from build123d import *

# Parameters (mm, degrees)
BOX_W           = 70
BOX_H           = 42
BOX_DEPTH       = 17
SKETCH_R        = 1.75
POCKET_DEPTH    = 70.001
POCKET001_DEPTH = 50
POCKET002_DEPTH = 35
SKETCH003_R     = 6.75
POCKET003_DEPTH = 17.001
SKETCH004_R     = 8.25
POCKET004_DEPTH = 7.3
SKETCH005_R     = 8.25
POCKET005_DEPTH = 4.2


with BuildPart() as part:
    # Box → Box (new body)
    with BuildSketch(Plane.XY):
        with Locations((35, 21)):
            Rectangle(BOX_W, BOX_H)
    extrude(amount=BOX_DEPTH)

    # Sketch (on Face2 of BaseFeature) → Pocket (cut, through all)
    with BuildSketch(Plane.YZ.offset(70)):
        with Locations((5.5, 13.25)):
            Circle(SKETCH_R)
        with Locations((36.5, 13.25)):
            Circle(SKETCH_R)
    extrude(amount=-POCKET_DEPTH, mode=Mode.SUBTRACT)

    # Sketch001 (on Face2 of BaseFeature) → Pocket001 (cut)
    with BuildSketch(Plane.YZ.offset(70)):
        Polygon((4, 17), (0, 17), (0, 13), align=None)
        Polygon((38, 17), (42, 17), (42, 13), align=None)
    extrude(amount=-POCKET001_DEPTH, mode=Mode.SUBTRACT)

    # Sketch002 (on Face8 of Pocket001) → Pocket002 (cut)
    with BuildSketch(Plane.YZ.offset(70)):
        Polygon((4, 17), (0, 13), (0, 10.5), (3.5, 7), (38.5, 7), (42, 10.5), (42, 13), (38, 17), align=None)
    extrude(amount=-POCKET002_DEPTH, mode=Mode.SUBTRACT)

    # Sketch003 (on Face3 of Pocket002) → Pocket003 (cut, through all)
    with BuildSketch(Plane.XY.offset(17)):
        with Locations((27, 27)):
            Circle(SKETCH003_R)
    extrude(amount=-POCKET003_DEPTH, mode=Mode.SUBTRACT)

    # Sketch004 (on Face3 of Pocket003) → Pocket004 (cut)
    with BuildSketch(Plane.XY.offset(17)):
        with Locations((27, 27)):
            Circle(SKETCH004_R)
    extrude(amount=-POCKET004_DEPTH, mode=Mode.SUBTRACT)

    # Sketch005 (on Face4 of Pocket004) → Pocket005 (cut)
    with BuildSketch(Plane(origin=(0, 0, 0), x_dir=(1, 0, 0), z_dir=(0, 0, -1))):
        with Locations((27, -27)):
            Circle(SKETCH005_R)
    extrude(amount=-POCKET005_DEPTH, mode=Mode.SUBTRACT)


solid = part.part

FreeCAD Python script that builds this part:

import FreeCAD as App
import Part
import Sketcher
Q = App.Units.Quantity

doc = App.newDocument("Part")
body = doc.addObject("PartDesign::Body", "Body")

# Sketch on XY plane
sketch1 = body.newObject("Sketcher::SketchObject", "Sketch")
sketch1.AttachmentSupport = (doc.getObject("XY_Plane"), [""])
sketch1.MapMode = "FlatFace"
sketch1.addGeometry([
    Part.LineSegment(App.Vector(0, 42, 0), App.Vector(0, 0, 0)),
    Part.LineSegment(App.Vector(0, 0, 0), App.Vector(70, 0, 0)),
    Part.LineSegment(App.Vector(70, 0, 0), App.Vector(70, 42, 0)),
    Part.LineSegment(App.Vector(70, 42, 0), App.Vector(0, 42, 0)),
], False)
sketch1.addConstraint([
    Sketcher.Constraint("Coincident", 0, 2, 1, 1),
    Sketcher.Constraint("Coincident", 1, 2, 2, 1),
    Sketcher.Constraint("Coincident", 2, 2, 3, 1),
    Sketcher.Constraint("Coincident", 3, 2, 0, 1),
    Sketcher.Constraint("Vertical", 0),
    Sketcher.Constraint("Horizontal", 1),
    Sketcher.Constraint("Vertical", 2),
    Sketcher.Constraint("Horizontal", 3),
    Sketcher.Constraint("Coincident", 0, 2, -1, 1),
    Sketcher.Constraint("DistanceX", 1, 1, 1, 2, Q("70 mm")),
    Sketcher.Constraint("DistanceY", 0, 2, 0, 1, Q("42 mm")),
])
pad1 = body.newObject("PartDesign::Pad", "Pad")
pad1.Profile = sketch1
pad1.Length = 17

# Sketch on YZ plane
sketch2 = body.newObject("Sketcher::SketchObject", "Sketch001")
sketch2.AttachmentSupport = (doc.getObject("YZ_Plane"), [""])
sketch2.MapMode = "FlatFace"
sketch2.AttachmentOffset = App.Placement(App.Vector(0, 0, 70), App.Rotation())
sketch2.addGeometry([
    Part.Circle(App.Vector(5.5, 13.2, 0), App.Vector(0, 0, 1), 1.8),
    Part.Circle(App.Vector(36.5, 13.2, 0), App.Vector(0, 0, 1), 1.8),
], False)
sketch2.addConstraint([
    Sketcher.Constraint("Equal", 0, 1),
    Sketcher.Constraint("Horizontal", 0, 3, 1, 3),
    Sketcher.Constraint("Diameter", 0, Q("3.5 mm")),
    Sketcher.Constraint("DistanceX", 0, 3, 1, 3, Q("31 mm")),
    Sketcher.Constraint("DistanceX", -1, 1, 0, 3, Q("5.5 mm")),
    Sketcher.Constraint("DistanceY", -1, 1, 0, 3, Q("13.25 mm")),
])
pocket1 = body.newObject("PartDesign::Pocket", "Pocket")
pocket1.Profile = sketch2
pocket1.Type = "ThroughAll"

# Sketch on YZ plane
sketch3 = body.newObject("Sketcher::SketchObject", "Sketch002")
sketch3.AttachmentSupport = (doc.getObject("YZ_Plane"), [""])
sketch3.MapMode = "FlatFace"
sketch3.AttachmentOffset = App.Placement(App.Vector(0, 0, 70), App.Rotation())
sketch3.addGeometry([
    Part.LineSegment(App.Vector(4, 17, 0), App.Vector(0, 17, 0)),  # 0
    Part.LineSegment(App.Vector(0, 17, 0), App.Vector(0, 13, 0)),  # 1
    Part.LineSegment(App.Vector(0, 13, 0), App.Vector(4, 17, 0)),  # 2
    Part.LineSegment(App.Vector(42, 17, 0), App.Vector(38, 17, 0)),  # 3
    Part.LineSegment(App.Vector(38, 17, 0), App.Vector(42, 13, 0)),  # 4
    Part.LineSegment(App.Vector(42, 13, 0), App.Vector(42, 17, 0)),  # 5
], False)
sketch3.addConstraint([
    Sketcher.Constraint("Coincident", 0, 2, 1, 1),
    Sketcher.Constraint("Coincident", 1, 2, 2, 1),
    Sketcher.Constraint("Coincident", 2, 2, 0, 1),
    Sketcher.Constraint("Coincident", 3, 2, 4, 1),
    Sketcher.Constraint("Coincident", 4, 2, 5, 1),
    Sketcher.Constraint("Coincident", 5, 2, 3, 1),
    Sketcher.Constraint("Horizontal", 0),
    Sketcher.Constraint("Vertical", 1),
    Sketcher.Constraint("Horizontal", 3),
    Sketcher.Constraint("Vertical", 5),
    Sketcher.Constraint("PointOnObject", 0, 2, -2),
    Sketcher.Constraint("Perpendicular", 2, 4),
    Sketcher.Constraint("Horizontal", 2, 2, 3, 2),
    Sketcher.Constraint("Horizontal", 1, 2, 4, 2),
    Sketcher.Constraint("Equal", 0, 3),
    Sketcher.Constraint("DistanceX", 0, 2, 0, 1, Q("4 mm")),
    Sketcher.Constraint("DistanceY", -1, 1, 0, 2, Q("17 mm")),
    Sketcher.Constraint("DistanceX", -1, 1, 3, 2, Q("38 mm")),
])
pocket2 = body.newObject("PartDesign::Pocket", "Pocket001")
pocket2.Profile = sketch3
pocket2.Length = 50

# Sketch on YZ plane
sketch4 = body.newObject("Sketcher::SketchObject", "Sketch003")
sketch4.AttachmentSupport = (doc.getObject("YZ_Plane"), [""])
sketch4.MapMode = "FlatFace"
sketch4.AttachmentOffset = App.Placement(App.Vector(0, 0, 70), App.Rotation())
sketch4.addGeometry([
    Part.LineSegment(App.Vector(4, 17, 0), App.Vector(0, 13, 0)),  # 0
    Part.LineSegment(App.Vector(0, 13, 0), App.Vector(0, 10.5, 0)),  # 1
    Part.LineSegment(App.Vector(0, 10.5, 0), App.Vector(3.5, 7, 0)),  # 2
    Part.LineSegment(App.Vector(3.5, 7, 0), App.Vector(38.5, 7, 0)),  # 3
    Part.LineSegment(App.Vector(38.5, 7, 0), App.Vector(42, 10.5, 0)),  # 4
    Part.LineSegment(App.Vector(42, 10.5, 0), App.Vector(42, 13, 0)),  # 5
    Part.LineSegment(App.Vector(42, 13, 0), App.Vector(38, 17, 0)),  # 6
    Part.LineSegment(App.Vector(38, 17, 0), App.Vector(4, 17, 0)),  # 7
], False)
sketch4.addConstraint([
    Sketcher.Constraint("Coincident", 0, 2, 1, 1),
    Sketcher.Constraint("Coincident", 1, 2, 2, 1),
    Sketcher.Constraint("Coincident", 2, 2, 3, 1),
    Sketcher.Constraint("Coincident", 3, 2, 4, 1),
    Sketcher.Constraint("Coincident", 4, 2, 5, 1),
    Sketcher.Constraint("Coincident", 5, 2, 6, 1),
    Sketcher.Constraint("Coincident", 6, 2, 7, 1),
    Sketcher.Constraint("Coincident", 7, 2, 0, 1),
    Sketcher.Constraint("Vertical", 1),
    Sketcher.Constraint("Horizontal", 3),
    Sketcher.Constraint("Vertical", 5),
    Sketcher.Constraint("Horizontal", 7),
    Sketcher.Constraint("PointOnObject", 0, 2, -2),
    Sketcher.Constraint("Perpendicular", 0, 2),
    Sketcher.Constraint("Perpendicular", 2, 4),
    Sketcher.Constraint("Perpendicular", 4, 6),
    Sketcher.Constraint("Horizontal", 1, 2, 4, 2),
    Sketcher.Constraint("Horizontal", 0, 2, 5, 2),
    Sketcher.Constraint("Equal", 2, 4),
    Sketcher.Constraint("DistanceX", 3, 1, 3, 2, Q("35 mm")),
    Sketcher.Constraint("DistanceX", 7, 2, 7, 1, Q("34 mm")),
    Sketcher.Constraint("DistanceY", 1, 2, 1, 1, Q("2.5 mm")),
    Sketcher.Constraint("DistanceY", -1, 1, 0, 2, Q("13 mm")),
    Sketcher.Constraint("DistanceY", -1, 1, 2, 2, Q("7 mm")),
])
pocket3 = body.newObject("PartDesign::Pocket", "Pocket002")
pocket3.Profile = sketch4
pocket3.Length = 35

# Sketch on XY plane
sketch5 = body.newObject("Sketcher::SketchObject", "Sketch004")
sketch5.AttachmentSupport = (doc.getObject("XY_Plane"), [""])
sketch5.MapMode = "FlatFace"
sketch5.AttachmentOffset = App.Placement(App.Vector(0, 0, 17), App.Rotation())
sketch5.addGeometry(Part.Circle(App.Vector(27, 27, 0), App.Vector(0, 0, 1), 7), False)
sketch5.addConstraint([
    Sketcher.Constraint("Diameter", 0, Q("13.5 mm")),
    Sketcher.Constraint("DistanceX", -1, 1, 0, 3, Q("27 mm")),
    Sketcher.Constraint("DistanceY", -1, 1, 0, 3, Q("27 mm")),
])
pocket4 = body.newObject("PartDesign::Pocket", "Pocket003")
pocket4.Profile = sketch5
pocket4.Type = "ThroughAll"

# Sketch on XY plane
sketch6 = body.newObject("Sketcher::SketchObject", "Sketch005")
sketch6.AttachmentSupport = (doc.getObject("XY_Plane"), [""])
sketch6.MapMode = "FlatFace"
sketch6.AttachmentOffset = App.Placement(App.Vector(0, 0, 17), App.Rotation())
sketch6.addGeometry(Part.Circle(App.Vector(27, 27, 0), App.Vector(0, 0, 1), 8), False)
sketch6.addConstraint([
    Sketcher.Constraint("Diameter", 0, Q("16.5 mm")),
    Sketcher.Constraint("DistanceX", -1, 1, 0, 3, Q("27 mm")),
    Sketcher.Constraint("DistanceY", -1, 1, 0, 3, Q("27 mm")),
])
pocket5 = body.newObject("PartDesign::Pocket", "Pocket004")
pocket5.Profile = sketch6
pocket5.Length = 7.3

# Sketch on XY plane
sketch7 = body.newObject("Sketcher::SketchObject", "Sketch006")
sketch7.AttachmentSupport = (doc.getObject("XY_Plane"), [""])
sketch7.MapMode = "FlatFace"
sketch7.addGeometry(Part.Circle(App.Vector(27, 27, 0), App.Vector(0, 0, 1), 8), False)
sketch7.addConstraint([
    Sketcher.Constraint("Diameter", 0, Q("16.5 mm")),
    Sketcher.Constraint("DistanceX", -1, 1, 0, 3, Q("27 mm")),
    Sketcher.Constraint("DistanceY", -1, 1, 0, 3, Q("27 mm")),
])
pocket6 = body.newObject("PartDesign::Pocket", "Pocket005")
pocket6.Profile = sketch7
pocket6.Length = 4.2
pocket6.Reversed = True

doc.recompute()
